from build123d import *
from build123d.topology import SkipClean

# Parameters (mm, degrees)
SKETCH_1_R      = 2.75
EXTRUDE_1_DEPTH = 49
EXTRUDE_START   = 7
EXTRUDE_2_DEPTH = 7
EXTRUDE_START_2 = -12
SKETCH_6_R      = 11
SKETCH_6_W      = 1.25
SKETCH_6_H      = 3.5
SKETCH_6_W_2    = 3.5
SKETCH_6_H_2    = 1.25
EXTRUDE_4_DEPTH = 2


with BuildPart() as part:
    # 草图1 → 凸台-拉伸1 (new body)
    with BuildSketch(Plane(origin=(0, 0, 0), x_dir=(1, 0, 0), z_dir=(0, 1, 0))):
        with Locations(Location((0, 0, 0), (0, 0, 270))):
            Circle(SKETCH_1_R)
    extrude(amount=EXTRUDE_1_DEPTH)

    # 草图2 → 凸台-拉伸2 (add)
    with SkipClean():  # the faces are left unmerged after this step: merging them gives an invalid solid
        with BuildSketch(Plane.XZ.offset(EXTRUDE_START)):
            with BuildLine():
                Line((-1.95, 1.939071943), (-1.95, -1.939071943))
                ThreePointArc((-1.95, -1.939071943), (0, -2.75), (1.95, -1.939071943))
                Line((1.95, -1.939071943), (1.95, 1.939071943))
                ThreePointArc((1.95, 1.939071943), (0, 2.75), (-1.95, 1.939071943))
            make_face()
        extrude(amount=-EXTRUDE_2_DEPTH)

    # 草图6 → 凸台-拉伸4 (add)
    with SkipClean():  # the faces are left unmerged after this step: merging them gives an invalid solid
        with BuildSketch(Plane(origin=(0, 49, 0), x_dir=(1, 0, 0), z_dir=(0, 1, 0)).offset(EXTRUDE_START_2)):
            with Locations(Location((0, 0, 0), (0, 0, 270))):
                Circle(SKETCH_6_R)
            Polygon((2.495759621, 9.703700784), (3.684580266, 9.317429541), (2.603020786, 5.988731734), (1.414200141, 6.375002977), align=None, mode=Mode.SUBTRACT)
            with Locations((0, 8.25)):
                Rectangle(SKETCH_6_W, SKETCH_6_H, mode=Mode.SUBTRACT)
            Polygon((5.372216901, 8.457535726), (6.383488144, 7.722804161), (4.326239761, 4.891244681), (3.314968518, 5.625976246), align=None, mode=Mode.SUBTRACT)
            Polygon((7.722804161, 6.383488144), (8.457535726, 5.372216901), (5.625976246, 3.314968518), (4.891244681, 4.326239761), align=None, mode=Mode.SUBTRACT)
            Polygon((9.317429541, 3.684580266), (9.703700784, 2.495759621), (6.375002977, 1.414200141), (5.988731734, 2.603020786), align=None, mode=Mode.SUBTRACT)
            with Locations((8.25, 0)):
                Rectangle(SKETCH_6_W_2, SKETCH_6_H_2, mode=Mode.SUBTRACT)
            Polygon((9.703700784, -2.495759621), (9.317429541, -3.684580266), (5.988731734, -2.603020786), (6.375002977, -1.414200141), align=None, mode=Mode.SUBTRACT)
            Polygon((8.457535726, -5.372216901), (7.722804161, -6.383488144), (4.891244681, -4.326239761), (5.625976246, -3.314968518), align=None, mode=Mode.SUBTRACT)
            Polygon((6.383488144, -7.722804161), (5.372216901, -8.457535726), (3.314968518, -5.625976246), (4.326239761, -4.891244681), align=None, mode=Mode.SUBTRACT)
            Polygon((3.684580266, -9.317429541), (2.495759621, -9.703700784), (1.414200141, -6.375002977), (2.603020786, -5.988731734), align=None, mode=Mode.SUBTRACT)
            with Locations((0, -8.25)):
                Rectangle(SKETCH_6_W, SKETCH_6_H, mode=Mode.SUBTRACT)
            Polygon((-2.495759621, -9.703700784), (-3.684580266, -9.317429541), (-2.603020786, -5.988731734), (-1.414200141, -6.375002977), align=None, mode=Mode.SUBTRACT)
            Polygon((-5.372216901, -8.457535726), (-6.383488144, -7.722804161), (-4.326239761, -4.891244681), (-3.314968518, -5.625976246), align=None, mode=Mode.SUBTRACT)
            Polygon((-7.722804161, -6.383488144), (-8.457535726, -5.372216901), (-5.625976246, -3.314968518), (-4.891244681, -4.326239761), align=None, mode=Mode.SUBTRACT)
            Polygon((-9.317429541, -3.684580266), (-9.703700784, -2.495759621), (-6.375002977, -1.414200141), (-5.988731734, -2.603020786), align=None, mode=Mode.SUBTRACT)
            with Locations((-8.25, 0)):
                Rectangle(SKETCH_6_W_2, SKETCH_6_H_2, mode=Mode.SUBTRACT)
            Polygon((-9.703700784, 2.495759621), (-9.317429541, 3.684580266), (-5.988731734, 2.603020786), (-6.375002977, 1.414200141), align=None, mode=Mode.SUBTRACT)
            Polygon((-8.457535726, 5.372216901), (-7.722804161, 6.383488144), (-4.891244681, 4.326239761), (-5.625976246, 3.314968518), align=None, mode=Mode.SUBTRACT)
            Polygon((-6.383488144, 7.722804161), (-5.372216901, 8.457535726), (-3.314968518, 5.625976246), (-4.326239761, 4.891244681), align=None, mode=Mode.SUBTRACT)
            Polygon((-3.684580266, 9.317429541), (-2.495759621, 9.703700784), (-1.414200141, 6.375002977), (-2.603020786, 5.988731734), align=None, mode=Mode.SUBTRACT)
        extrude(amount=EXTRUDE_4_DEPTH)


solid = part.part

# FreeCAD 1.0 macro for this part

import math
import FreeCAD as App
import Part
import Sketcher
Q = App.Units.Quantity


def add_polygon(sketch, points):
    """Adds a closed chain of lines whose ends are joined by coincident constraints."""
    first, n = sketch.GeometryCount, len(points)
    for a, b in zip(points, points[1:] + points[:1]):
        sketch.addGeometry(Part.LineSegment(App.Vector(*a, 0), App.Vector(*b, 0)), False)
    for i in range(n):
        sketch.addConstraint(Sketcher.Constraint("Coincident", first + i, 2, first + (i + 1) % n, 1))

doc = App.newDocument("Part")
body = doc.addObject("PartDesign::Body", "Body")

# Sketch on XZ plane
sketch1 = body.newObject("Sketcher::SketchObject", "Sketch")
sketch1.AttachmentSupport = (doc.getObject("XZ_Plane"), [""])
sketch1.MapMode = "FlatFace"
sketch1.addGeometry(Part.Circle(App.Vector(0, 0, 0), App.Vector(0, 0, 1), 2.75), False)
sketch1.addConstraint(Sketcher.Constraint("Coincident", 0, 3, -1, 1))
sketch1.addConstraint(Sketcher.Constraint("Diameter", 0, Q("5.5 mm")))
pad1 = body.newObject("PartDesign::Pad", "Pad")
pad1.Profile = sketch1
pad1.Length = 49
pad1.Reversed = True

# Sketch on XZ plane
sketch2 = body.newObject("Sketcher::SketchObject", "Sketch001")
sketch2.AttachmentSupport = (doc.getObject("XZ_Plane"), [""])
sketch2.MapMode = "FlatFace"
sketch2.AttachmentOffset = App.Placement(App.Vector(0, 0, 7), App.Rotation())
sketch2.addGeometry(Part.LineSegment(App.Vector(-1.95, 1.939072, 0), App.Vector(-1.95, -1.939072, 0)), False)
sketch2.addGeometry(Part.ArcOfCircle(Part.Circle(App.Vector(0, 0, 0), App.Vector(0, 0, 1), 2.75), math.radians(-135.160997), math.radians(-44.839003)), False)
sketch2.addGeometry(Part.LineSegment(App.Vector(1.95, -1.939072, 0), App.Vector(1.95, 1.939072, 0)), False)
sketch2.addGeometry(Part.ArcOfCircle(Part.Circle(App.Vector(0, 0, 0), App.Vector(0, 0, 1), 2.75), math.radians(44.839003), math.radians(135.160997)), False)
sketch2.addConstraint(Sketcher.Constraint("Coincident", 0, 2, 1, 1))
sketch2.addConstraint(Sketcher.Constraint("Coincident", 1, 2, 2, 1))
sketch2.addConstraint(Sketcher.Constraint("Coincident", 2, 2, 3, 1))
sketch2.addConstraint(Sketcher.Constraint("Coincident", 3, 2, 0, 1))
sketch2.addConstraint(Sketcher.Constraint("Vertical", 0))
sketch2.addConstraint(Sketcher.Constraint("Vertical", 2))
sketch2.addConstraint(Sketcher.Constraint("Coincident", 1, 3, -1, 1))
sketch2.addConstraint(Sketcher.Constraint("Coincident", 3, 3, -1, 1))
sketch2.addConstraint(Sketcher.Constraint("Equal", 1, 3))
sketch2.addConstraint(Sketcher.Constraint("Horizontal", 0, 2, 1, 2))
sketch2.addConstraint(Sketcher.Constraint("Radius", 1, Q("2.75 mm")))
sketch2.addConstraint(Sketcher.Constraint("DistanceX", 0, 2, 1, 2, Q("3.9 mm")))
pad2 = body.newObject("PartDesign::Pad", "Pad001")
pad2.Profile = sketch2
pad2.Length = 7
pad2.Reversed = True

# Sketch on XZ plane
sketch3 = body.newObject("Sketcher::SketchObject", "Sketch002")
sketch3.AttachmentSupport = (doc.getObject("XZ_Plane"), [""])
sketch3.MapMode = "FlatFace"
sketch3.AttachmentOffset = App.Placement(App.Vector(0, 0, -37), App.Rotation())
sketch3.addGeometry(Part.Circle(App.Vector(0, 0, 0), App.Vector(0, 0, 1), 11), False)  # 0
add_polygon(sketch3, [(-6.375003, -1.4142), (-9.703701, -2.49576), (-9.31743, -3.68458), (-5.988732, -2.603021)])  # lines 1-4
add_polygon(sketch3, [(-5.625976, -3.314969), (-8.457536, -5.372217), (-7.722804, -6.383488), (-4.891245, -4.32624)])  # lines 5-8
add_polygon(sketch3, [(-2.603021, -5.988732), (-3.68458, -9.31743), (-2.49576, -9.703701), (-1.4142, -6.375003)])  # lines 9-12
add_polygon(sketch3, [(-4.32624, -4.891245), (-6.383488, -7.722804), (-5.372217, -8.457536), (-3.314969, -5.625976)])  # lines 13-16
add_polygon(sketch3, [(0.625, -6.5), (-0.625, -6.5), (-0.625, -10), (0.625, -10)])  # lines 17-20
add_polygon(sketch3, [(-6.5, 0.625), (-10, 0.625), (-10, -0.625), (-6.5, -0.625)])  # lines 21-24
add_polygon(sketch3, [(-5.988732, 2.603021), (-9.31743, 3.68458), (-9.703701, 2.49576), (-6.375003, 1.4142)])  # lines 25-28
add_polygon(sketch3, [(-4.891245, 4.32624), (-7.722804, 6.383488), (-8.457536, 5.372217), (-5.625976, 3.314969)])  # lines 29-32
add_polygon(sketch3, [(-3.314969, 5.625976), (-5.372217, 8.457536), (-6.383488, 7.722804), (-4.32624, 4.891245)])  # lines 33-36
add_polygon(sketch3, [(-1.4142, 6.375003), (-2.49576, 9.703701), (-3.68458, 9.31743), (-2.603021, 5.988732)])  # lines 37-40
add_polygon(sketch3, [(1.4142, -6.375003), (2.49576, -9.703701), (3.68458, -9.31743), (2.603021, -5.988732)])  # lines 41-44
add_polygon(sketch3, [(3.314969, -5.625976), (5.372217, -8.457536), (6.383488, -7.722804), (4.32624, -4.891245)])  # lines 45-48
add_polygon(sketch3, [(4.891245, -4.32624), (7.722804, -6.383488), (8.457536, -5.372217), (5.625976, -3.314969)])  # lines 49-52
add_polygon(sketch3, [(5.988732, -2.603021), (9.31743, -3.68458), (9.703701, -2.49576), (6.375003, -1.4142)])  # lines 53-56
add_polygon(sketch3, [(10, 0.625), (6.5, 0.625), (6.5, -0.625), (10, -0.625)])  # lines 57-60
add_polygon(sketch3, [(0.625, 10), (-0.625, 10), (-0.625, 6.5), (0.625, 6.5)])  # lines 61-64
add_polygon(sketch3, [(4.32624, 4.891245), (6.383488, 7.722804), (5.372217, 8.457536), (3.314969, 5.625976)])  # lines 65-68
add_polygon(sketch3, [(2.603021, 5.988732), (3.68458, 9.31743), (2.49576, 9.703701), (1.4142, 6.375003)])  # lines 69-72
add_polygon(sketch3, [(5.625976, 3.314969), (8.457536, 5.372217), (7.722804, 6.383488), (4.891245, 4.32624)])  # lines 73-76
add_polygon(sketch3, [(6.375003, 1.4142), (9.703701, 2.49576), (9.31743, 3.68458), (5.988732, 2.603021)])  # lines 77-80
sketch3.addConstraint(Sketcher.Constraint("Horizontal", 17))
sketch3.addConstraint(Sketcher.Constraint("Vertical", 18))
sketch3.addConstraint(Sketcher.Constraint("Horizontal", 19))
sketch3.addConstraint(Sketcher.Constraint("Vertical", 20))
sketch3.addConstraint(Sketcher.Constraint("Horizontal", 21))
sketch3.addConstraint(Sketcher.Constraint("Vertical", 22))
sketch3.addConstraint(Sketcher.Constraint("Horizontal", 23))
sketch3.addConstraint(Sketcher.Constraint("Vertical", 24))
sketch3.addConstraint(Sketcher.Constraint("Horizontal", 57))
sketch3.addConstraint(Sketcher.Constraint("Vertical", 58))
sketch3.addConstraint(Sketcher.Constraint("Horizontal", 59))
sketch3.addConstraint(Sketcher.Constraint("Vertical", 60))
sketch3.addConstraint(Sketcher.Constraint("Horizontal", 61))
sketch3.addConstraint(Sketcher.Constraint("Vertical", 62))
sketch3.addConstraint(Sketcher.Constraint("Horizontal", 63))
sketch3.addConstraint(Sketcher.Constraint("Vertical", 64))
sketch3.addConstraint(Sketcher.Constraint("Coincident", 0, 3, -1, 1))
sketch3.addConstraint(Sketcher.Constraint("Symmetric", 37, 2, 41, 2, -1, 1))
sketch3.addConstraint(Sketcher.Constraint("Symmetric", 38, 2, 42, 2, -1, 1))
sketch3.addConstraint(Sketcher.Constraint("Symmetric", 39, 2, 43, 2, -1, 1))
sketch3.addConstraint(Sketcher.Constraint("Symmetric", 40, 2, 44, 2, -1, 1))
sketch3.addConstraint(Sketcher.Constraint("Symmetric", 33, 2, 45, 2, -1, 1))
sketch3.addConstraint(Sketcher.Constraint("Symmetric", 34, 2, 46, 2, -1, 1))
sketch3.addConstraint(Sketcher.Constraint("Symmetric", 35, 2, 47, 2, -1, 1))
sketch3.addConstraint(Sketcher.Constraint("Symmetric", 36, 2, 48, 2, -1, 1))
sketch3.addConstraint(Sketcher.Constraint("Symmetric", 29, 2, 49, 2, -1, 1))
sketch3.addConstraint(Sketcher.Constraint("Symmetric", 30, 2, 50, 2, -1, 1))
sketch3.addConstraint(Sketcher.Constraint("Symmetric", 31, 2, 51, 2, -1, 1))
sketch3.addConstraint(Sketcher.Constraint("Symmetric", 32, 2, 52, 2, -1, 1))
sketch3.addConstraint(Sketcher.Constraint("Symmetric", 25, 2, 53, 2, -1, 1))
sketch3.addConstraint(Sketcher.Constraint("Symmetric", 26, 2, 54, 2, -1, 1))
sketch3.addConstraint(Sketcher.Constraint("Symmetric", 27, 2, 55, 2, -1, 1))
sketch3.addConstraint(Sketcher.Constraint("Symmetric", 28, 2, 56, 2, -1, 1))
sketch3.addConstraint(Sketcher.Constraint("Symmetric", 23, 2, 57, 2, -1, 1))
sketch3.addConstraint(Sketcher.Constraint("Symmetric", 21, 2, 59, 2, -1, 1))
sketch3.addConstraint(Sketcher.Constraint("Symmetric", 19, 2, 61, 2, -1, 1))
sketch3.addConstraint(Sketcher.Constraint("Symmetric", 17, 2, 63, 2, -1, 1))
sketch3.addConstraint(Sketcher.Constraint("Symmetric", 13, 2, 65, 2, -1, 1))
sketch3.addConstraint(Sketcher.Constraint("Symmetric", 14, 2, 66, 2, -1, 1))
sketch3.addConstraint(Sketcher.Constraint("Symmetric", 15, 2, 67, 2, -1, 1))
sketch3.addConstraint(Sketcher.Constraint("Symmetric", 16, 2, 68, 2, -1, 1))
sketch3.addConstraint(Sketcher.Constraint("Symmetric", 9, 2, 69, 2, -1, 1))
sketch3.addConstraint(Sketcher.Constraint("Symmetric", 10, 2, 70, 2, -1, 1))
sketch3.addConstraint(Sketcher.Constraint("Symmetric", 11, 2, 71, 2, -1, 1))
sketch3.addConstraint(Sketcher.Constraint("Symmetric", 12, 2, 72, 2, -1, 1))
sketch3.addConstraint(Sketcher.Constraint("Symmetric", 5, 2, 73, 2, -1, 1))
sketch3.addConstraint(Sketcher.Constraint("Symmetric", 6, 2, 74, 2, -1, 1))
sketch3.addConstraint(Sketcher.Constraint("Symmetric", 7, 2, 75, 2, -1, 1))
sketch3.addConstraint(Sketcher.Constraint("Symmetric", 8, 2, 76, 2, -1, 1))
sketch3.addConstraint(Sketcher.Constraint("Symmetric", 1, 2, 77, 2, -1, 1))
sketch3.addConstraint(Sketcher.Constraint("Symmetric", 2, 2, 78, 2, -1, 1))
sketch3.addConstraint(Sketcher.Constraint("Symmetric", 3, 2, 79, 2, -1, 1))
sketch3.addConstraint(Sketcher.Constraint("Symmetric", 4, 2, 80, 2, -1, 1))
sketch3.addConstraint(Sketcher.Constraint("Symmetric", 10, 2, 41, 2, -2))
sketch3.addConstraint(Sketcher.Constraint("Symmetric", 9, 2, 42, 2, -2))
sketch3.addConstraint(Sketcher.Constraint("Symmetric", 12, 2, 43, 2, -2))
sketch3.addConstraint(Sketcher.Constraint("Symmetric", 11, 2, 44, 2, -2))
sketch3.addConstraint(Sketcher.Constraint("Symmetric", 14, 2, 45, 2, -2))
sketch3.addConstraint(Sketcher.Constraint("Symmetric", 13, 2, 46, 2, -2))
sketch3.addConstraint(Sketcher.Constraint("Symmetric", 16, 2, 47, 2, -2))
sketch3.addConstraint(Sketcher.Constraint("Symmetric", 15, 2, 48, 2, -2))
sketch3.addConstraint(Sketcher.Constraint("Symmetric", 6, 2, 49, 2, -2))
sketch3.addConstraint(Sketcher.Constraint("Symmetric", 5, 2, 50, 2, -2))
sketch3.addConstraint(Sketcher.Constraint("Symmetric", 8, 2, 51, 2, -2))
sketch3.addConstraint(Sketcher.Constraint("Symmetric", 7, 2, 52, 2, -2))
sketch3.addConstraint(Sketcher.Constraint("Symmetric", 2, 2, 53, 2, -2))
sketch3.addConstraint(Sketcher.Constraint("Symmetric", 1, 2, 54, 2, -2))
sketch3.addConstraint(Sketcher.Constraint("Symmetric", 4, 2, 55, 2, -2))
sketch3.addConstraint(Sketcher.Constraint("Symmetric", 3, 2, 56, 2, -2))
sketch3.addConstraint(Sketcher.Constraint("Perpendicular", 1, 2))
sketch3.addConstraint(Sketcher.Constraint("Perpendicular", 2, 3))
sketch3.addConstraint(Sketcher.Constraint("Perpendicular", 3, 4))
sketch3.addConstraint(Sketcher.Constraint("Perpendicular", 5, 6))
sketch3.addConstraint(Sketcher.Constraint("Perpendicular", 6, 7))
sketch3.addConstraint(Sketcher.Constraint("Perpendicular", 7, 8))
sketch3.addConstraint(Sketcher.Constraint("Perpendicular", 9, 10))
sketch3.addConstraint(Sketcher.Constraint("Perpendicular", 10, 11))
sketch3.addConstraint(Sketcher.Constraint("Perpendicular", 11, 12))
sketch3.addConstraint(Sketcher.Constraint("Perpendicular", 13, 14))
sketch3.addConstraint(Sketcher.Constraint("Perpendicular", 14, 15))
sketch3.addConstraint(Sketcher.Constraint("Perpendicular", 15, 16))
sketch3.addConstraint(Sketcher.Constraint("Parallel", 12, 25))
sketch3.addConstraint(Sketcher.Constraint("Parallel", 16, 29))
sketch3.addConstraint(Sketcher.Constraint("Horizontal", 24, 2, 57, 2))
sketch3.addConstraint(Sketcher.Constraint("Vertical", 18, 2, 61, 2))
sketch3.addConstraint(Sketcher.Constraint("Equal", 59, 18))
sketch3.addConstraint(Sketcher.Constraint("Equal", 63, 22))
sketch3.addConstraint(Sketcher.Constraint("Equal", 3, 5))
sketch3.addConstraint(Sketcher.Constraint("Equal", 4, 6))
sketch3.addConstraint(Sketcher.Constraint("Equal", 7, 9))
sketch3.addConstraint(Sketcher.Constraint("Equal", 8, 10))
sketch3.addConstraint(Sketcher.Constraint("Equal", 11, 13))
sketch3.addConstraint(Sketcher.Constraint("Equal", 12, 14))
sketch3.addConstraint(Sketcher.Constraint("Diameter", 0, Q("22 mm")))
sketch3.addConstraint(Sketcher.Constraint("Angle", 1, Q("-162 deg")))
sketch3.addConstraint(Sketcher.Constraint("Angle", 5, Q("-144 deg")))
sketch3.addConstraint(Sketcher.Constraint("DistanceX", 21, 2, 21, 1, Q("3.5 mm")))
sketch3.addConstraint(Sketcher.Constraint("DistanceY", 18, 2, -1, 1, Q("10 mm")))
sketch3.addConstraint(Sketcher.Constraint("DistanceX", 21, 2, -1, 1, Q("10 mm")))
sketch3.addConstraint(Sketcher.Constraint("Distance", 1, Q("3.5 mm")))
sketch3.addConstraint(Sketcher.Constraint("DistanceX", 17, 2, 17, 1, Q("1.25 mm")))
sketch3.addConstraint(Sketcher.Constraint("Distance", 2, Q("1.25 mm")))
sketch3.addConstraint(Sketcher.Constraint("DistanceX", 1, 2, -1, 1, Q("9.703701 mm")))
sketch3.addConstraint(Sketcher.Constraint("DistanceY", 4, 2, -1, 1, Q("1.4142 mm")))
sketch3.addConstraint(Sketcher.Constraint("DistanceY", 10, 2, -1, 1, Q("9.703701 mm")))
sketch3.addConstraint(Sketcher.Constraint("DistanceX", 11, 2, -1, 1, Q("1.4142 mm")))
sketch3.addConstraint(Sketcher.Constraint("DistanceY", 6, 2, -1, 1, Q("6.383488 mm")))
sketch3.addConstraint(Sketcher.Constraint("DistanceX", 13, 2, -1, 1, Q("6.383488 mm")))
sketch3.addConstraint(Sketcher.Constraint("DistanceX", 5, 2, -1, 1, Q("8.457536 mm")))
sketch3.addConstraint(Sketcher.Constraint("DistanceY", 13, 2, -1, 1, Q("7.722804 mm")))
pad3 = body.newObject("PartDesign::Pad", "Pad002")
pad3.Profile = sketch3
pad3.Length = 2
pad3.Reversed = True

doc.recompute()
